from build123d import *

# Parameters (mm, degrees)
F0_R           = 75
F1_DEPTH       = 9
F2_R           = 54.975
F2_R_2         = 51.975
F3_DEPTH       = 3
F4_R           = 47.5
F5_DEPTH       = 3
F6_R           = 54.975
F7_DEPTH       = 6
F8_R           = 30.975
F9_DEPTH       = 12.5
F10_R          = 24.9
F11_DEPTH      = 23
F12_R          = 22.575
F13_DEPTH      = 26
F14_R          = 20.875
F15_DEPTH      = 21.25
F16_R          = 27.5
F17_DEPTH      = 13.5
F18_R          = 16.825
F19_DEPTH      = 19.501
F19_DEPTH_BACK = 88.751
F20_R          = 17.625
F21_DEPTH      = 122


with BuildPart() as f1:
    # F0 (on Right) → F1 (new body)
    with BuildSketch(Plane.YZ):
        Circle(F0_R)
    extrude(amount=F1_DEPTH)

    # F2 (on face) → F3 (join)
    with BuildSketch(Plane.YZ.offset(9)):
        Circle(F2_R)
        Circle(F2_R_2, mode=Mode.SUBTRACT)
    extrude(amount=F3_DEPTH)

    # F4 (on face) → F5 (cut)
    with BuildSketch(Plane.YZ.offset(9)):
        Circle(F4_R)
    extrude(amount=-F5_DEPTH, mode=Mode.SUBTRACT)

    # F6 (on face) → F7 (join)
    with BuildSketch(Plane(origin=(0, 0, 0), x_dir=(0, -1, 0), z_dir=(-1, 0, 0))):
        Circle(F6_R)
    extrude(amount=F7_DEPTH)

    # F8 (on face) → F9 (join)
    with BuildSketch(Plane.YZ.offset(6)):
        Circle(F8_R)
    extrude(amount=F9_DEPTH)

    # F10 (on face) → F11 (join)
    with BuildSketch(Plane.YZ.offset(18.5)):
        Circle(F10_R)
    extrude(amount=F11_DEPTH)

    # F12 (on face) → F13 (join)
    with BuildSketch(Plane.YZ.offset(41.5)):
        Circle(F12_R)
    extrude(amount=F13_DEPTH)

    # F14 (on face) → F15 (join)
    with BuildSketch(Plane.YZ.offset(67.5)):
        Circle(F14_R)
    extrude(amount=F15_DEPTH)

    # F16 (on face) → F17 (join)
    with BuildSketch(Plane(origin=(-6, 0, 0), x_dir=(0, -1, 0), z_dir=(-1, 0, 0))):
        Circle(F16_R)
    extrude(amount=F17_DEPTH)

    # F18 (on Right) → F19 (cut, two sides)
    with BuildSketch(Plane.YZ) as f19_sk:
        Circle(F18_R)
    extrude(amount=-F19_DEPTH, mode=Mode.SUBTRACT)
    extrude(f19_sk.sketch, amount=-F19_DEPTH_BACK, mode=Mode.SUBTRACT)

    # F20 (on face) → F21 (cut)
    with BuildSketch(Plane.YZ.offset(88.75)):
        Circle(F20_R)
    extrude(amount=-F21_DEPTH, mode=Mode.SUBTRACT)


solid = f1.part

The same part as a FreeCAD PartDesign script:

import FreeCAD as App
import Part
import Sketcher
Q = App.Units.Quantity

doc = App.newDocument("Part")
body = doc.addObject("PartDesign::Body", "Body")

sketch1 = body.newObject("Sketcher::SketchObject", "Sketch")
sketch1.AttachmentSupport = (doc.getObject("YZ_Plane"), [""])
sketch1.MapMode = "FlatFace"
sketch1.addGeometry(Part.Circle(App.Vector(0, 0, 0), App.Vector(0, 0, 1), 75), False)
sketch1.addConstraint(Sketcher.Constraint("Coincident", 0, 3, -1, 1))
sketch1.addConstraint(Sketcher.Constraint("Diameter", 0, Q("150 mm")))
pad1 = body.newObject("PartDesign::Pad", "Pad")
pad1.Profile = sketch1
pad1.Length = 9

sketch2 = body.newObject("Sketcher::SketchObject", "Sketch001")
sketch2.AttachmentSupport = (doc.getObject("YZ_Plane"), [""])
sketch2.MapMode = "FlatFace"
sketch2.AttachmentOffset = App.Placement(App.Vector(0, 0, 9), App.Rotation())
sketch2.addGeometry(Part.Circle(App.Vector(0, 0, 0), App.Vector(0, 0, 1), 55), False)
sketch2.addGeometry(Part.Circle(App.Vector(0, 0, 0), App.Vector(0, 0, 1), 52), False)
sketch2.addConstraint(Sketcher.Constraint("Coincident", 0, 3, -1, 1))
sketch2.addConstraint(Sketcher.Constraint("Coincident", 1, 3, -1, 1))
sketch2.addConstraint(Sketcher.Constraint("Diameter", 0, Q("109.95 mm")))
sketch2.addConstraint(Sketcher.Constraint("Diameter", 1, Q("103.95 mm")))
pad2 = body.newObject("PartDesign::Pad", "Pad001")
pad2.Profile = sketch2
pad2.Length = 3

sketch3 = body.newObject("Sketcher::SketchObject", "Sketch002")
sketch3.AttachmentSupport = (doc.getObject("YZ_Plane"), [""])
sketch3.MapMode = "FlatFace"
sketch3.AttachmentOffset = App.Placement(App.Vector(0, 0, 9), App.Rotation())
sketch3.addGeometry(Part.Circle(App.Vector(0, 0, 0), App.Vector(0, 0, 1), 48), False)
sketch3.addConstraint(Sketcher.Constraint("Coincident", 0, 3, -1, 1))
sketch3.addConstraint(Sketcher.Constraint("Diameter", 0, Q("95 mm")))
pocket1 = body.newObject("PartDesign::Pocket", "Pocket")
pocket1.Profile = sketch3
pocket1.Length = 3

sketch4 = body.newObject("Sketcher::SketchObject", "Sketch003")
sketch4.AttachmentSupport = (doc.getObject("YZ_Plane"), [""])
sketch4.MapMode = "FlatFace"
sketch4.addGeometry(Part.Circle(App.Vector(0, 0, 0), App.Vector(0, 0, 1), 55), False)
sketch4.addConstraint(Sketcher.Constraint("Coincident", 0, 3, -1, 1))
sketch4.addConstraint(Sketcher.Constraint("Diameter", 0, Q("109.95 mm")))
pad3 = body.newObject("PartDesign::Pad", "Pad002")
pad3.Profile = sketch4
pad3.Length = 6
pad3.Reversed = True

sketch5 = body.newObject("Sketcher::SketchObject", "Sketch004")
sketch5.AttachmentSupport = (doc.getObject("YZ_Plane"), [""])
sketch5.MapMode = "FlatFace"
sketch5.AttachmentOffset = App.Placement(App.Vector(0, 0, 6), App.Rotation())
sketch5.addGeometry(Part.Circle(App.Vector(0, 0, 0), App.Vector(0, 0, 1), 31), False)
sketch5.addConstraint(Sketcher.Constraint("Coincident", 0, 3, -1, 1))
sketch5.addConstraint(Sketcher.Constraint("Diameter", 0, Q("61.95 mm")))
pad4 = body.newObject("PartDesign::Pad", "Pad003")
pad4.Profile = sketch5
pad4.Length = 12.5

sketch6 = body.newObject("Sketcher::SketchObject", "Sketch005")
sketch6.AttachmentSupport = (doc.getObject("YZ_Plane"), [""])
sketch6.MapMode = "FlatFace"
sketch6.AttachmentOffset = App.Placement(App.Vector(0, 0, 18.5), App.Rotation())
sketch6.addGeometry(Part.Circle(App.Vector(0, 0, 0), App.Vector(0, 0, 1), 25), False)
sketch6.addConstraint(Sketcher.Constraint("Coincident", 0, 3, -1, 1))
sketch6.addConstraint(Sketcher.Constraint("Diameter", 0, Q("49.8 mm")))
pad5 = body.newObject("PartDesign::Pad", "Pad004")
pad5.Profile = sketch6
pad5.Length = 23

sketch7 = body.newObject("Sketcher::SketchObject", "Sketch006")
sketch7.AttachmentSupport = (doc.getObject("YZ_Plane"), [""])
sketch7.MapMode = "FlatFace"
sketch7.AttachmentOffset = App.Placement(App.Vector(0, 0, 41.5), App.Rotation())
sketch7.addGeometry(Part.Circle(App.Vector(0, 0, 0), App.Vector(0, 0, 1), 23), False)
sketch7.addConstraint(Sketcher.Constraint("Coincident", 0, 3, -1, 1))
sketch7.addConstraint(Sketcher.Constraint("Diameter", 0, Q("45.15 mm")))
pad6 = body.newObject("PartDesign::Pad", "Pad005")
pad6.Profile = sketch7
pad6.Length = 26

sketch8 = body.newObject("Sketcher::SketchObject", "Sketch007")
sketch8.AttachmentSupport = (doc.getObject("YZ_Plane"), [""])
sketch8.MapMode = "FlatFace"
sketch8.AttachmentOffset = App.Placement(App.Vector(0, 0, 67.5), App.Rotation())
sketch8.addGeometry(Part.Circle(App.Vector(0, 0, 0), App.Vector(0, 0, 1), 21), False)
sketch8.addConstraint(Sketcher.Constraint("Coincident", 0, 3, -1, 1))
sketch8.addConstraint(Sketcher.Constraint("Diameter", 0, Q("41.75 mm")))
pad7 = body.newObject("PartDesign::Pad", "Pad006")
pad7.Profile = sketch8
pad7.Length = 21.25

sketch9 = body.newObject("Sketcher::SketchObject", "Sketch008")
sketch9.AttachmentSupport = (doc.getObject("YZ_Plane"), [""])
sketch9.MapMode = "FlatFace"
sketch9.AttachmentOffset = App.Placement(App.Vector(0, 0, -6), App.Rotation())
sketch9.addGeometry(Part.Circle(App.Vector(0, 0, 0), App.Vector(0, 0, 1), 28), False)
sketch9.addConstraint(Sketcher.Constraint("Coincident", 0, 3, -1, 1))
sketch9.addConstraint(Sketcher.Constraint("Diameter", 0, Q("55 mm")))
pad8 = body.newObject("PartDesign::Pad", "Pad007")
pad8.Profile = sketch9
pad8.Length = 13.5
pad8.Reversed = True

sketch10 = body.newObject("Sketcher::SketchObject", "Sketch009")
sketch10.AttachmentSupport = (doc.getObject("YZ_Plane"), [""])
sketch10.MapMode = "FlatFace"
sketch10.addGeometry(Part.Circle(App.Vector(0, 0, 0), App.Vector(0, 0, 1), 17), False)
sketch10.addConstraint(Sketcher.Constraint("Coincident", 0, 3, -1, 1))
sketch10.addConstraint(Sketcher.Constraint("Diameter", 0, Q("33.65 mm")))
pocket2 = body.newObject("PartDesign::Pocket", "Pocket001")
pocket2.Profile = sketch10
pocket2.Length = 19.501
pocket3 = body.newObject("PartDesign::Pocket", "Pocket002")
pocket3.Profile = sketch10
pocket3.Length = 88.751

sketch11 = body.newObject("Sketcher::SketchObject", "Sketch010")
sketch11.AttachmentSupport = (doc.getObject("YZ_Plane"), [""])
sketch11.MapMode = "FlatFace"
sketch11.AttachmentOffset = App.Placement(App.Vector(0, 0, 88.75), App.Rotation())
sketch11.addGeometry(Part.Circle(App.Vector(0, 0, 0), App.Vector(0, 0, 1), 18), False)
sketch11.addConstraint(Sketcher.Constraint("Coincident", 0, 3, -1, 1))
sketch11.addConstraint(Sketcher.Constraint("Diameter", 0, Q("35.25 mm")))
pocket4 = body.newObject("PartDesign::Pocket", "Pocket003")
pocket4.Profile = sketch11
pocket4.Length = 122

doc.recompute()
